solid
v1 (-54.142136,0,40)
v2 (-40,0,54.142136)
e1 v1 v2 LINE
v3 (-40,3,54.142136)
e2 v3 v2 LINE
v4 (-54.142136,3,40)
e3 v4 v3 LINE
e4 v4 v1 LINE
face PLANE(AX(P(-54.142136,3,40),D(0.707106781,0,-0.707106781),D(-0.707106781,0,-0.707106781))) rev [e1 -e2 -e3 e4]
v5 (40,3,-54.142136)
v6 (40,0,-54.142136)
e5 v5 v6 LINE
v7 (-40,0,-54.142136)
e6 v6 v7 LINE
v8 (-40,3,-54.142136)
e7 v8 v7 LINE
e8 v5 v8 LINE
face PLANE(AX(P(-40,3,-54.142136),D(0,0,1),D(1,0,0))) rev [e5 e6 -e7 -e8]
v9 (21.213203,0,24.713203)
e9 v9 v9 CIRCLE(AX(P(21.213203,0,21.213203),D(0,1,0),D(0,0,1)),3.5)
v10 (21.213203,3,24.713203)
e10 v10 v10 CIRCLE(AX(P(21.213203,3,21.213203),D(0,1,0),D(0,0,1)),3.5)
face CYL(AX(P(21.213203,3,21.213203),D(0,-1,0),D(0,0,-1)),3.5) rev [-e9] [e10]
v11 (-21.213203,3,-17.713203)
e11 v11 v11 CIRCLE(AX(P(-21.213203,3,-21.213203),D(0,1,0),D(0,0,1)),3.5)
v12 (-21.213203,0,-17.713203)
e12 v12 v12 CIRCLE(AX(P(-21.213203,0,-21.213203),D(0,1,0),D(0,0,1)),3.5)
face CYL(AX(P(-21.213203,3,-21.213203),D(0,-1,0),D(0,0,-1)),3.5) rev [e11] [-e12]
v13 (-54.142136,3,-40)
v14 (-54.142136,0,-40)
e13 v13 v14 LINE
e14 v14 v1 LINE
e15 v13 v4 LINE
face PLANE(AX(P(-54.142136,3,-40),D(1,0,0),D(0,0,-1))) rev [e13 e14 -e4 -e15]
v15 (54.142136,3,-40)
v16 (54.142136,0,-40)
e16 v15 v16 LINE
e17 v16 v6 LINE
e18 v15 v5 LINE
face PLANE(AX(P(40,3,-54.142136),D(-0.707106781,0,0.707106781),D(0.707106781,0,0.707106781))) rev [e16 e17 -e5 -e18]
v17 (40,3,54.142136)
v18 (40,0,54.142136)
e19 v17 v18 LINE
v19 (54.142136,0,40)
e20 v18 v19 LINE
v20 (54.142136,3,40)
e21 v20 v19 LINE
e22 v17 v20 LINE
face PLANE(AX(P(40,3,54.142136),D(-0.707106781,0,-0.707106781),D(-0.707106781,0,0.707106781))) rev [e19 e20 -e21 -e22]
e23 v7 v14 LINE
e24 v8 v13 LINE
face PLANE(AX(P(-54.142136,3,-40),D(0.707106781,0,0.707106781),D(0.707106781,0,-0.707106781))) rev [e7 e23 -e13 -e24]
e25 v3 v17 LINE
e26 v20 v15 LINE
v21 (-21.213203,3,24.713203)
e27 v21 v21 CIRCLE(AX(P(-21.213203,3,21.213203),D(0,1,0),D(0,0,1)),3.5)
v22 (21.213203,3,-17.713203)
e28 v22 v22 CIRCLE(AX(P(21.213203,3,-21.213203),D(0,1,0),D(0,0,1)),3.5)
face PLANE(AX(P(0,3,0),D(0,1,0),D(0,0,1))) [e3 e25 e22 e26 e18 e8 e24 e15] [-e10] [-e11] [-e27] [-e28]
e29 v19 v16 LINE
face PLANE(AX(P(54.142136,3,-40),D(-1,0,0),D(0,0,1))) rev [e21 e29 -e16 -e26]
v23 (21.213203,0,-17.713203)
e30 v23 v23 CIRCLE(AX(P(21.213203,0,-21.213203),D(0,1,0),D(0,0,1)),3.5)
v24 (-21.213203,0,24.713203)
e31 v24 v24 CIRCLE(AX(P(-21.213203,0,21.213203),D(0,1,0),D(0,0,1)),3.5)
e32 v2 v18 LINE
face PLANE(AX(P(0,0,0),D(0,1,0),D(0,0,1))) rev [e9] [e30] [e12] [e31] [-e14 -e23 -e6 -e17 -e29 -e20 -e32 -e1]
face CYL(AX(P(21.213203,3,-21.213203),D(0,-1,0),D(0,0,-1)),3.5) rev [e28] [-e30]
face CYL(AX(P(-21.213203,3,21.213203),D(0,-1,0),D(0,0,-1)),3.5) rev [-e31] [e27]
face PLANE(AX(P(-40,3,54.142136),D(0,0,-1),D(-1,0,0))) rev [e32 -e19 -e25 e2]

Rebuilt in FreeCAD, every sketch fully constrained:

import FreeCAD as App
import Part
import Sketcher
from FreeCAD import Vector

doc = App.newDocument("Part")
body = doc.addObject("PartDesign::Body", "Body")

# Sketch on XZ plane
sketch1 = body.newObject("Sketcher::SketchObject", "Sketch")
sketch1.AttachmentSupport = (doc.getObject("XZ_Plane"), [""])
sketch1.MapMode = "FlatFace"
sketch1.addGeometry([
    Part.LineSegment(Vector(-40, -54.1, 0), Vector(-54.1, -40, 0)),  # 0
    Part.LineSegment(Vector(-54.1, -40, 0), Vector(-54.1, 40, 0)),  # 1
    Part.LineSegment(Vector(-54.1, 40, 0), Vector(-40, 54.1, 0)),  # 2
    Part.LineSegment(Vector(-40, 54.1, 0), Vector(40, 54.1, 0)),  # 3
    Part.LineSegment(Vector(40, 54.1, 0), Vector(54.1, 40, 0)),  # 4
    Part.LineSegment(Vector(54.1, 40, 0), Vector(54.1, -40, 0)),  # 5
    Part.LineSegment(Vector(54.1, -40, 0), Vector(40, -54.1, 0)),  # 6
    Part.LineSegment(Vector(40, -54.1, 0), Vector(-40, -54.1, 0)),  # 7
    Part.Circle(Vector(21.2, 21.2, 0), Vector(0, 0, 1), 3.5),  # 8
    Part.Circle(Vector(-21.2, 21.2, 0), Vector(0, 0, 1), 3.5),  # 9
    Part.Circle(Vector(21.2, -21.2, 0), Vector(0, 0, 1), 3.5),  # 10
    Part.Circle(Vector(-21.2, -21.2, 0), Vector(0, 0, 1), 3.5),  # 11
], False)
sketch1.addConstraint([
    Sketcher.Constraint("Coincident", 0, 2, 1, 1),
    Sketcher.Constraint("Coincident", 1, 2, 2, 1),
    Sketcher.Constraint("Coincident", 2, 2, 3, 1),
    Sketcher.Constraint("Coincident", 3, 2, 4, 1),
    Sketcher.Constraint("Coincident", 4, 2, 5, 1),
    Sketcher.Constraint("Coincident", 5, 2, 6, 1),
    Sketcher.Constraint("Coincident", 6, 2, 7, 1),
    Sketcher.Constraint("Coincident", 7, 2, 0, 1),
    Sketcher.Constraint("Vertical", 1),
    Sketcher.Constraint("Horizontal", 3),
    Sketcher.Constraint("Vertical", 5),
    Sketcher.Constraint("Horizontal", 7),
    Sketcher.Constraint("Equal", 8, 9),
    Sketcher.Constraint("Equal", 9, 10),
    Sketcher.Constraint("Equal", 10, 11),
    Sketcher.Constraint("Symmetric", 9, 3, 10, 3, -1, 1),
    Sketcher.Constraint("Symmetric", 8, 3, 11, 3, -1, 1),
    Sketcher.Constraint("Symmetric", 0, 2, 4, 2, -1, 1),
    Sketcher.Constraint("Symmetric", 2, 2, 6, 2, -1, 1),
    Sketcher.Constraint("Symmetric", 8, 3, 9, 3, -2),
    Sketcher.Constraint("Perpendicular", 0, 2),
    Sketcher.Constraint("Perpendicular", 2, 4),
    Sketcher.Constraint("Perpendicular", 4, 6),
    Sketcher.Constraint("Horizontal", 1, 2, 4, 2),
    Sketcher.Constraint("Vertical", 3, 2, 6, 2),
    Sketcher.Constraint("Equal", 7, 1),
    Sketcher.Constraint("Diameter", 8, 7.0),
    Sketcher.Constraint("DistanceX", 3, 1, 3, 2, 80.0),
    Sketcher.Constraint("Distance", 0, 20.0),
    Sketcher.Constraint("DistanceX", 0, 2, 10, 3, 75.355339),
    Sketcher.Constraint("DistanceY", 11, 3, 2, 2, 75.355339),
])
pad1 = body.newObject("PartDesign::Pad", "Pad")
pad1.Profile = sketch1
pad1.Length = 3
pad1.Reversed = True

doc.recompute()
